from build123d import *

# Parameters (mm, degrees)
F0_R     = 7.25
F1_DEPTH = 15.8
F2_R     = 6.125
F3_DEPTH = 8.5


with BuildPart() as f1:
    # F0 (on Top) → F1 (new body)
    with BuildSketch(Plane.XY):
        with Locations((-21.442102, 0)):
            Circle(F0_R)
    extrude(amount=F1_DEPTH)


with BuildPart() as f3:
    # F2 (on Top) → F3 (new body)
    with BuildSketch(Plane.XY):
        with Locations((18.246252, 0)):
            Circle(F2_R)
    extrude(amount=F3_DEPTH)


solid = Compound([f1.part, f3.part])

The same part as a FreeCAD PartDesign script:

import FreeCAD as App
import Part
import Sketcher
from FreeCAD import Vector

doc = App.newDocument("Part")
body = doc.addObject("PartDesign::Body", "Body")

sketch1 = body.newObject("Sketcher::SketchObject", "Sketch")
sketch1.AttachmentSupport = (doc.getObject("XY_Plane"), [""])
sketch1.MapMode = "FlatFace"
sketch1.addGeometry(Part.Circle(Vector(-21, 0, 0), Vector(0, 0, 1), 7), False)
sketch1.addConstraint([
    Sketcher.Constraint("PointOnObject", 0, 3, -1),
    Sketcher.Constraint("Diameter", 0, 14.5),
    Sketcher.Constraint("DistanceX", 0, 3, -1, 1, 21.442102),
])
pad1 = body.newObject("PartDesign::Pad", "Pad")
pad1.Profile = sketch1
pad1.Length = 15.8
body2 = doc.addObject("PartDesign::Body", "Body001")

sketch2 = body2.newObject("Sketcher::SketchObject", "Sketch001")
sketch2.AttachmentSupport = (doc.getObject("XY_Plane001"), [""])
sketch2.MapMode = "FlatFace"
sketch2.addGeometry(Part.Circle(Vector(18, 0, 0), Vector(0, 0, 1), 6), False)
sketch2.addConstraint([
    Sketcher.Constraint("PointOnObject", 0, 3, -1),
    Sketcher.Constraint("Diameter", 0, 12.25),
    Sketcher.Constraint("DistanceX", -1, 1, 0, 3, 18.246252),
])
pad2 = body2.newObject("PartDesign::Pad", "Pad001")
pad2.Profile = sketch2
pad2.Length = 8.5

doc.recompute()
